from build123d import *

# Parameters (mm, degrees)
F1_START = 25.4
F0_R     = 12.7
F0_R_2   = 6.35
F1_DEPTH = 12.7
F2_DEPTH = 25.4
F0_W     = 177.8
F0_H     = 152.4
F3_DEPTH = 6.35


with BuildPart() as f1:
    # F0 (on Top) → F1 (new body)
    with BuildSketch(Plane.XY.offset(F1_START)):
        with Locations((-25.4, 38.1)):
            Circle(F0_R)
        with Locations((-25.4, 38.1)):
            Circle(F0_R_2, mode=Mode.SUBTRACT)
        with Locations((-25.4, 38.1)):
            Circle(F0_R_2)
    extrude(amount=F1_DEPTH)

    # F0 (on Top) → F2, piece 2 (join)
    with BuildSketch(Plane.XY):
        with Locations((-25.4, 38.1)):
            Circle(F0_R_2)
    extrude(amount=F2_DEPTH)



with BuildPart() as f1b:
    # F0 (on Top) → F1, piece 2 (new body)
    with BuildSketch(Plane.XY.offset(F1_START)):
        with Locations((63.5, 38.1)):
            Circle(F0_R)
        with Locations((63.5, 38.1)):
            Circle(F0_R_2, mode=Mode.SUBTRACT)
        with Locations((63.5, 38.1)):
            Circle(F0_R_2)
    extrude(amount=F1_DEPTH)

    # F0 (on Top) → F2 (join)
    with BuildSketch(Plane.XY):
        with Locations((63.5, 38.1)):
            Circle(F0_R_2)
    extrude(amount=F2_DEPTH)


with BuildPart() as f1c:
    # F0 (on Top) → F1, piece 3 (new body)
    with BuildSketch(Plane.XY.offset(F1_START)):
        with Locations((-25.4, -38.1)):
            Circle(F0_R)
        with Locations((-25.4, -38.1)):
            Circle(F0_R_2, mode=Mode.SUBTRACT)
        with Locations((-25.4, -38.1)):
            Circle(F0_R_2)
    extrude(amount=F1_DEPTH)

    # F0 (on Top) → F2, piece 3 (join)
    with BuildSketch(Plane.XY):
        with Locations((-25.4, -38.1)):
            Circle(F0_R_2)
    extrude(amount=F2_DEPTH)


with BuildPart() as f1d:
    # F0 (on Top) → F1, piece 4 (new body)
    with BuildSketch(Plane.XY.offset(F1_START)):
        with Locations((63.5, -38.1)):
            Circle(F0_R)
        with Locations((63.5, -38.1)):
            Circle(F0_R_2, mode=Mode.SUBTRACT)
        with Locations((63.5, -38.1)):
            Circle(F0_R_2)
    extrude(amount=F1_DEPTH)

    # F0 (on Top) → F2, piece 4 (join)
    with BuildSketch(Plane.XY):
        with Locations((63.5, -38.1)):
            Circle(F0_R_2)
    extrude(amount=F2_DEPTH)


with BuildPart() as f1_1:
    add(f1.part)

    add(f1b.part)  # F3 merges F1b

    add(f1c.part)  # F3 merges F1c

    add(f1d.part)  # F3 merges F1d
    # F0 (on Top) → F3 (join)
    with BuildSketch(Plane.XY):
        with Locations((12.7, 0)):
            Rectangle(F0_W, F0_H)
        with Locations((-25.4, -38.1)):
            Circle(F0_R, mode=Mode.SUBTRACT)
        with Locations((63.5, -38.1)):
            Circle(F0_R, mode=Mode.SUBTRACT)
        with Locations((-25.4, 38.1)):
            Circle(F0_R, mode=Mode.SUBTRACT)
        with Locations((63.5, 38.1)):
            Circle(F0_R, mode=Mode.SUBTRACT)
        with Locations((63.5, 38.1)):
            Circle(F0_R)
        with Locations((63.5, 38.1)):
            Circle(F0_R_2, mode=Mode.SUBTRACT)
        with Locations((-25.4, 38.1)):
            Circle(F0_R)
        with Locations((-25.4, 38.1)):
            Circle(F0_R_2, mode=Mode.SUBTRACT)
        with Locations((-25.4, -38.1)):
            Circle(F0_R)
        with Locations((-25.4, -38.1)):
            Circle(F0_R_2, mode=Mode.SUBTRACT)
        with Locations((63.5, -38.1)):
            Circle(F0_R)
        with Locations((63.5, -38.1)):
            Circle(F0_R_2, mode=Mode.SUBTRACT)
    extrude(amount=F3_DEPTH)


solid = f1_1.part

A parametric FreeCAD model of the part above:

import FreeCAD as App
import Part
import Sketcher
from FreeCAD import Vector
Q = App.Units.Quantity

doc = App.newDocument("Part")
body = doc.addObject("PartDesign::Body", "Body")

sketch1 = body.newObject("Sketcher::SketchObject", "Sketch")
sketch1.AttachmentSupport = (doc.getObject("XY_Plane"), [""])
sketch1.MapMode = "FlatFace"
sketch1.AttachmentOffset = App.Placement(Vector(0, 0, 1 * 25.4), App.Rotation())
sketch1.addGeometry(Part.Circle(Vector(-25.4, 38.1, 0), Vector(0, 0, 1), 12.7), False)
sketch1.addConstraint(Sketcher.Constraint("Diameter", 0, Q("1 in")))
sketch1.addConstraint(Sketcher.Constraint("DistanceX", 0, 3, -1, 1, Q("1 in")))
sketch1.addConstraint(Sketcher.Constraint("DistanceY", -1, 1, 0, 3, Q("1.5 in")))
pad1 = body.newObject("PartDesign::Pad", "Pad")
pad1.Profile = sketch1
pad1.Length = Q("0.5 in")

sketch2 = body.newObject("Sketcher::SketchObject", "Sketch001")
sketch2.AttachmentSupport = (doc.getObject("XY_Plane"), [""])
sketch2.MapMode = "FlatFace"
sketch2.addGeometry(Part.Circle(Vector(-25.4, 38.1, 0), Vector(0, 0, 1), 6.35), False)
sketch2.addConstraint(Sketcher.Constraint("Diameter", 0, Q("0.5 in")))
sketch2.addConstraint(Sketcher.Constraint("DistanceX", 0, 3, -1, 1, Q("1 in")))
sketch2.addConstraint(Sketcher.Constraint("DistanceY", -1, 1, 0, 3, Q("1.5 in")))
pad2 = body.newObject("PartDesign::Pad", "Pad001")
pad2.Profile = sketch2
pad2.Length = Q("1 in")
body2 = doc.addObject("PartDesign::Body", "Body001")

sketch3 = body2.newObject("Sketcher::SketchObject", "Sketch002")
sketch3.AttachmentSupport = (doc.getObject("XY_Plane001"), [""])
sketch3.MapMode = "FlatFace"
sketch3.AttachmentOffset = App.Placement(Vector(0, 0, 1 * 25.4), App.Rotation())
sketch3.addGeometry(Part.Circle(Vector(63.5, 38.1, 0), Vector(0, 0, 1), 12.7), False)
sketch3.addConstraint(Sketcher.Constraint("Diameter", 0, Q("1 in")))
sketch3.addConstraint(Sketcher.Constraint("DistanceX", -1, 1, 0, 3, Q("2.5 in")))
sketch3.addConstraint(Sketcher.Constraint("DistanceY", -1, 1, 0, 3, Q("1.5 in")))
pad3 = body2.newObject("PartDesign::Pad", "Pad002")
pad3.Profile = sketch3
pad3.Length = Q("0.5 in")

sketch4 = body2.newObject("Sketcher::SketchObject", "Sketch003")
sketch4.AttachmentSupport = (doc.getObject("XY_Plane001"), [""])
sketch4.MapMode = "FlatFace"
sketch4.addGeometry(Part.Circle(Vector(63.5, 38.1, 0), Vector(0, 0, 1), 6.35), False)
sketch4.addConstraint(Sketcher.Constraint("Diameter", 0, Q("0.5 in")))
sketch4.addConstraint(Sketcher.Constraint("DistanceX", -1, 1, 0, 3, Q("2.5 in")))
sketch4.addConstraint(Sketcher.Constraint("DistanceY", -1, 1, 0, 3, Q("1.5 in")))
pad4 = body2.newObject("PartDesign::Pad", "Pad003")
pad4.Profile = sketch4
pad4.Length = Q("1 in")
body3 = doc.addObject("PartDesign::Body", "Body002")

sketch5 = body3.newObject("Sketcher::SketchObject", "Sketch004")
sketch5.AttachmentSupport = (doc.getObject("XY_Plane002"), [""])
sketch5.MapMode = "FlatFace"
sketch5.AttachmentOffset = App.Placement(Vector(0, 0, 1 * 25.4), App.Rotation())
sketch5.addGeometry(Part.Circle(Vector(-25.4, -38.1, 0), Vector(0, 0, 1), 12.7), False)
sketch5.addConstraint(Sketcher.Constraint("Diameter", 0, Q("1 in")))
sketch5.addConstraint(Sketcher.Constraint("DistanceX", 0, 3, -1, 1, Q("1 in")))
sketch5.addConstraint(Sketcher.Constraint("DistanceY", 0, 3, -1, 1, Q("1.5 in")))
pad5 = body3.newObject("PartDesign::Pad", "Pad004")
pad5.Profile = sketch5
pad5.Length = Q("0.5 in")

sketch6 = body3.newObject("Sketcher::SketchObject", "Sketch005")
sketch6.AttachmentSupport = (doc.getObject("XY_Plane002"), [""])
sketch6.MapMode = "FlatFace"
sketch6.addGeometry(Part.Circle(Vector(-25.4, -38.1, 0), Vector(0, 0, 1), 6.35), False)
sketch6.addConstraint(Sketcher.Constraint("Diameter", 0, Q("0.5 in")))
sketch6.addConstraint(Sketcher.Constraint("DistanceX", 0, 3, -1, 1, Q("1 in")))
sketch6.addConstraint(Sketcher.Constraint("DistanceY", 0, 3, -1, 1, Q("1.5 in")))
pad6 = body3.newObject("PartDesign::Pad", "Pad005")
pad6.Profile = sketch6
pad6.Length = Q("1 in")
body4 = doc.addObject("PartDesign::Body", "Body003")

sketch7 = body4.newObject("Sketcher::SketchObject", "Sketch006")
sketch7.AttachmentSupport = (doc.getObject("XY_Plane003"), [""])
sketch7.MapMode = "FlatFace"
sketch7.AttachmentOffset = App.Placement(Vector(0, 0, 1 * 25.4), App.Rotation())
sketch7.addGeometry(Part.Circle(Vector(63.5, -38.1, 0), Vector(0, 0, 1), 12.7), False)
sketch7.addConstraint(Sketcher.Constraint("Diameter", 0, Q("1 in")))
sketch7.addConstraint(Sketcher.Constraint("DistanceX", -1, 1, 0, 3, Q("2.5 in")))
sketch7.addConstraint(Sketcher.Constraint("DistanceY", 0, 3, -1, 1, Q("1.5 in")))
pad7 = body4.newObject("PartDesign::Pad", "Pad006")
pad7.Profile = sketch7
pad7.Length = Q("0.5 in")

sketch8 = body4.newObject("Sketcher::SketchObject", "Sketch007")
sketch8.AttachmentSupport = (doc.getObject("XY_Plane003"), [""])
sketch8.MapMode = "FlatFace"
sketch8.addGeometry(Part.Circle(Vector(63.5, -38.1, 0), Vector(0, 0, 1), 6.35), False)
sketch8.addConstraint(Sketcher.Constraint("Diameter", 0, Q("0.5 in")))
sketch8.addConstraint(Sketcher.Constraint("DistanceX", -1, 1, 0, 3, Q("2.5 in")))
sketch8.addConstraint(Sketcher.Constraint("DistanceY", 0, 3, -1, 1, Q("1.5 in")))
pad8 = body4.newObject("PartDesign::Pad", "Pad007")
pad8.Profile = sketch8
pad8.Length = Q("1 in")
body.AllowCompound = True
doc.recompute()

boolean = body.newObject("PartDesign::Boolean", "Boolean")
boolean.Type = "Fuse"
boolean.addObjects([body2])
doc.recompute()

boolean2 = body.newObject("PartDesign::Boolean", "Boolean001")
boolean2.Type = "Fuse"
boolean2.addObjects([body3])
doc.recompute()

boolean3 = body.newObject("PartDesign::Boolean", "Boolean002")
boolean3.Type = "Fuse"
boolean3.addObjects([body4])

sketch9 = body.newObject("Sketcher::SketchObject", "Sketch008")
sketch9.AttachmentSupport = (doc.getObject("XY_Plane"), [""])
sketch9.MapMode = "FlatFace"
sketch9.addGeometry(Part.LineSegment(Vector(-76.2, 76.2, 0), Vector(-76.2, -76.2, 0)), False)
sketch9.addGeometry(Part.LineSegment(Vector(-76.2, -76.2, 0), Vector(101.6, -76.2, 0)), False)
sketch9.addGeometry(Part.LineSegment(Vector(101.6, -76.2, 0), Vector(101.6, 76.2, 0)), False)
sketch9.addGeometry(Part.LineSegment(Vector(101.6, 76.2, 0), Vector(-76.2, 76.2, 0)), False)
sketch9.addGeometry(Part.Circle(Vector(-25.4, -38.1, 0), Vector(0, 0, 1), 6.35), False)
sketch9.addGeometry(Part.Circle(Vector(63.5, -38.1, 0), Vector(0, 0, 1), 6.35), False)
sketch9.addGeometry(Part.Circle(Vector(-25.4, 38.1, 0), Vector(0, 0, 1), 6.35), False)
sketch9.addGeometry(Part.Circle(Vector(63.5, 38.1, 0), Vector(0, 0, 1), 6.35), False)
sketch9.addConstraint(Sketcher.Constraint("Coincident", 0, 2, 1, 1))
sketch9.addConstraint(Sketcher.Constraint("Coincident", 1, 2, 2, 1))
sketch9.addConstraint(Sketcher.Constraint("Coincident", 2, 2, 3, 1))
sketch9.addConstraint(Sketcher.Constraint("Coincident", 3, 2, 0, 1))
sketch9.addConstraint(Sketcher.Constraint("Vertical", 0))
sketch9.addConstraint(Sketcher.Constraint("Horizontal", 1))
sketch9.addConstraint(Sketcher.Constraint("Vertical", 2))
sketch9.addConstraint(Sketcher.Constraint("Horizontal", 3))
sketch9.addConstraint(Sketcher.Constraint("Equal", 4, 5))
sketch9.addConstraint(Sketcher.Constraint("Equal", 5, 6))
sketch9.addConstraint(Sketcher.Constraint("Equal", 6, 7))
sketch9.addConstraint(Sketcher.Constraint("Symmetric", 4, 3, 6, 3, -1))
sketch9.addConstraint(Sketcher.Constraint("Symmetric", 5, 3, 7, 3, -1))
sketch9.addConstraint(Sketcher.Constraint("Horizontal", 4, 3, 5, 3))
sketch9.addConstraint(Sketcher.Constraint("Diameter", 4, Q("0.5 in")))
sketch9.addConstraint(Sketcher.Constraint("DistanceX", 1, 1, 1, 2, Q("7 in")))
sketch9.addConstraint(Sketcher.Constraint("DistanceY", 0, 2, 0, 1, Q("6 in")))
sketch9.addConstraint(Sketcher.Constraint("DistanceX", 4, 3, -1, 1, Q("1 in")))
sketch9.addConstraint(Sketcher.Constraint("DistanceX", 0, 2, -1, 1, Q("3 in")))
sketch9.addConstraint(Sketcher.Constraint("DistanceY", 0, 2, -1, 1, Q("3 in")))
sketch9.addConstraint(Sketcher.Constraint("DistanceY", 4, 3, 6, 3, Q("3 in")))
sketch9.addConstraint(Sketcher.Constraint("DistanceX", -1, 1, 5, 3, Q("2.5 in")))
pad9 = body.newObject("PartDesign::Pad", "Pad008")
pad9.Profile = sketch9
pad9.Length = Q("0.25 in")

doc.recompute()
